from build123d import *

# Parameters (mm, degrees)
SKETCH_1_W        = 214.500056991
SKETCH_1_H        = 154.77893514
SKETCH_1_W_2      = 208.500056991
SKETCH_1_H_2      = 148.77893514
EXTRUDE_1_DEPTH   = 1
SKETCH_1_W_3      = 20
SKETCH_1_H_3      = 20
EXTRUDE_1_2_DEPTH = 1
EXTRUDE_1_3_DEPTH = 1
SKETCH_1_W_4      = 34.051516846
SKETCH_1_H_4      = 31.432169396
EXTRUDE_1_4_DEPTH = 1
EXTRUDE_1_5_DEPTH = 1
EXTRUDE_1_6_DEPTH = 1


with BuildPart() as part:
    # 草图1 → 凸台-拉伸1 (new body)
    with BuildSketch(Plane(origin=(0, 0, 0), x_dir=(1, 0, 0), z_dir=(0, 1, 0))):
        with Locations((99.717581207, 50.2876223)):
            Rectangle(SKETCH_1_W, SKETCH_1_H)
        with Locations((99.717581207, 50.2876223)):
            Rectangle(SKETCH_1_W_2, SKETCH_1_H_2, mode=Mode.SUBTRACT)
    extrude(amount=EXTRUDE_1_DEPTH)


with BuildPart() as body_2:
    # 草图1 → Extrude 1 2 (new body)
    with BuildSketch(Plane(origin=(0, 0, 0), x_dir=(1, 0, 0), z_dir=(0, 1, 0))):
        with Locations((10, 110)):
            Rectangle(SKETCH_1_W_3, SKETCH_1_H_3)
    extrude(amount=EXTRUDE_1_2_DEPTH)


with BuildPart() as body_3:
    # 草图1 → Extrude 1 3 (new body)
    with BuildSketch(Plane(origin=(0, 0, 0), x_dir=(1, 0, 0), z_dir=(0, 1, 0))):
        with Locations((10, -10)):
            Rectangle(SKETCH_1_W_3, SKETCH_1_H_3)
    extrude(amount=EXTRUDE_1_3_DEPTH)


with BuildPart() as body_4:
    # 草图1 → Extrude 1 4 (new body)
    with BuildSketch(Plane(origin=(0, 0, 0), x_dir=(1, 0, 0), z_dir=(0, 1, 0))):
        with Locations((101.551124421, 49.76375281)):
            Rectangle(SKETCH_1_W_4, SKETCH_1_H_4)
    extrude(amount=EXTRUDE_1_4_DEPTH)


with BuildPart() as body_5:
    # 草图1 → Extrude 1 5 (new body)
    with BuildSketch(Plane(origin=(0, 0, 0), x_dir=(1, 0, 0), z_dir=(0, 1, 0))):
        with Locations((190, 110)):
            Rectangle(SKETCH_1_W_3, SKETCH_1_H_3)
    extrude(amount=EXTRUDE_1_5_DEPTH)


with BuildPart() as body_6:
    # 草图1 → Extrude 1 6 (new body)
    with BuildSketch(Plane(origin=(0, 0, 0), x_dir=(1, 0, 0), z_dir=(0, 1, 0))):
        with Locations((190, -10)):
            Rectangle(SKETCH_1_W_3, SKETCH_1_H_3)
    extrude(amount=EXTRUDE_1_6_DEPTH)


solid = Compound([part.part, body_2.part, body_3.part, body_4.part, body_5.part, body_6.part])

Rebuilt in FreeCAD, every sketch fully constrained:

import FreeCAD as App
import Part
import Sketcher
from FreeCAD import Vector

doc = App.newDocument("Part")
body = doc.addObject("PartDesign::Body", "Body")

sketch1 = body.newObject("Sketcher::SketchObject", "Sketch")
sketch1.AttachmentSupport = (doc.getObject("XZ_Plane"), [""])
sketch1.MapMode = "FlatFace"
sketch1.addGeometry([
    Part.LineSegment(Vector(-8, -128, 0), Vector(-8, 27, 0)),
    Part.LineSegment(Vector(-8, 27, 0), Vector(207, 27, 0)),
    Part.LineSegment(Vector(207, 27, 0), Vector(207, -128, 0)),
    Part.LineSegment(Vector(207, -128, 0), Vector(-8, -128, 0)),
    Part.LineSegment(Vector(204, 24, 0), Vector(-5, 24, 0)),
    Part.LineSegment(Vector(-5, 24, 0), Vector(-5, -125, 0)),
    Part.LineSegment(Vector(-5, -125, 0), Vector(204, -125, 0)),
    Part.LineSegment(Vector(204, -125, 0), Vector(204, 24, 0)),
], False)
sketch1.addConstraint([
    Sketcher.Constraint("Coincident", 0, 2, 1, 1),
    Sketcher.Constraint("Coincident", 1, 2, 2, 1),
    Sketcher.Constraint("Coincident", 2, 2, 3, 1),
    Sketcher.Constraint("Coincident", 3, 2, 0, 1),
    Sketcher.Constraint("Coincident", 4, 2, 5, 1),
    Sketcher.Constraint("Coincident", 5, 2, 6, 1),
    Sketcher.Constraint("Coincident", 6, 2, 7, 1),
    Sketcher.Constraint("Coincident", 7, 2, 4, 1),
    Sketcher.Constraint("Vertical", 0),
    Sketcher.Constraint("Horizontal", 1),
    Sketcher.Constraint("Vertical", 2),
    Sketcher.Constraint("Horizontal", 3),
    Sketcher.Constraint("Horizontal", 4),
    Sketcher.Constraint("Vertical", 5),
    Sketcher.Constraint("Horizontal", 6),
    Sketcher.Constraint("Vertical", 7),
    Sketcher.Constraint("DistanceX", 0, 2, 4, 2, 3.0),
    Sketcher.Constraint("DistanceY", 4, 2, 0, 2, 3.0),
    Sketcher.Constraint("DistanceY", 3, 2, 5, 2, 3.0),
    Sketcher.Constraint("DistanceX", 6, 2, 2, 2, 3.0),
    Sketcher.Constraint("DistanceX", 1, 1, 1, 2, 214.500057),
    Sketcher.Constraint("DistanceY", 0, 1, 0, 2, 154.778935),
    Sketcher.Constraint("DistanceX", -1, 1, 1, 2, 206.96761),
    Sketcher.Constraint("DistanceY", 2, 2, -1, 1, 127.67709),
])
pad1 = body.newObject("PartDesign::Pad", "Pad")
pad1.Profile = sketch1
pad1.Length = 1
pad1.Reversed = True
body2 = doc.addObject("PartDesign::Body", "Body001")

sketch2 = body2.newObject("Sketcher::SketchObject", "Sketch001")
sketch2.AttachmentSupport = (doc.getObject("XZ_Plane001"), [""])
sketch2.MapMode = "FlatFace"
sketch2.addGeometry([
    Part.LineSegment(Vector(0, -120, 0), Vector(0, -100, 0)),
    Part.LineSegment(Vector(0, -100, 0), Vector(20, -100, 0)),
    Part.LineSegment(Vector(20, -100, 0), Vector(20, -120, 0)),
    Part.LineSegment(Vector(20, -120, 0), Vector(0, -120, 0)),
], False)
sketch2.addConstraint([
    Sketcher.Constraint("Coincident", 0, 2, 1, 1),
    Sketcher.Constraint("Coincident", 1, 2, 2, 1),
    Sketcher.Constraint("Coincident", 2, 2, 3, 1),
    Sketcher.Constraint("Coincident", 3, 2, 0, 1),
    Sketcher.Constraint("Vertical", 0),
    Sketcher.Constraint("Horizontal", 1),
    Sketcher.Constraint("Vertical", 2),
    Sketcher.Constraint("Horizontal", 3),
    Sketcher.Constraint("PointOnObject", 0, 2, -2),
    Sketcher.Constraint("Equal", 3, 0),
    Sketcher.Constraint("DistanceX", 1, 1, 1, 2, 20.0),
    Sketcher.Constraint("DistanceY", 0, 2, -1, 1, 100.0),
])
pad2 = body2.newObject("PartDesign::Pad", "Pad001")
pad2.Profile = sketch2
pad2.Length = 1
pad2.Reversed = True
body3 = doc.addObject("PartDesign::Body", "Body002")

sketch3 = body3.newObject("Sketcher::SketchObject", "Sketch002")
sketch3.AttachmentSupport = (doc.getObject("XZ_Plane002"), [""])
sketch3.MapMode = "FlatFace"
sketch3.addGeometry([
    Part.LineSegment(Vector(0, 0, 0), Vector(0, 20, 0)),
    Part.LineSegment(Vector(0, 20, 0), Vector(20, 20, 0)),
    Part.LineSegment(Vector(20, 20, 0), Vector(20, 0, 0)),
    Part.LineSegment(Vector(20, 0, 0), Vector(0, 0, 0)),
], False)
sketch3.addConstraint([
    Sketcher.Constraint("Coincident", 0, 2, 1, 1),
    Sketcher.Constraint("Coincident", 1, 2, 2, 1),
    Sketcher.Constraint("Coincident", 2, 2, 3, 1),
    Sketcher.Constraint("Coincident", 3, 2, 0, 1),
    Sketcher.Constraint("Vertical", 0),
    Sketcher.Constraint("Horizontal", 1),
    Sketcher.Constraint("Vertical", 2),
    Sketcher.Constraint("Horizontal", 3),
    Sketcher.Constraint("Coincident", 3, 2, -1, 1),
    Sketcher.Constraint("Equal", 3, 0),
    Sketcher.Constraint("DistanceX", 1, 1, 1, 2, 20.0),
])
pad3 = body3.newObject("PartDesign::Pad", "Pad002")
pad3.Profile = sketch3
pad3.Length = 1
pad3.Reversed = True
body4 = doc.addObject("PartDesign::Body", "Body003")

sketch4 = body4.newObject("Sketcher::SketchObject", "Sketch003")
sketch4.AttachmentSupport = (doc.getObject("XZ_Plane003"), [""])
sketch4.MapMode = "FlatFace"
sketch4.addGeometry([
    Part.LineSegment(Vector(85, -65, 0), Vector(85, -34, 0)),
    Part.LineSegment(Vector(85, -34, 0), Vector(119, -34, 0)),
    Part.LineSegment(Vector(119, -34, 0), Vector(119, -65, 0)),
    Part.LineSegment(Vector(119, -65, 0), Vector(85, -65, 0)),
], False)
sketch4.addConstraint([
    Sketcher.Constraint("Coincident", 0, 2, 1, 1),
    Sketcher.Constraint("Coincident", 1, 2, 2, 1),
    Sketcher.Constraint("Coincident", 2, 2, 3, 1),
    Sketcher.Constraint("Coincident", 3, 2, 0, 1),
    Sketcher.Constraint("Vertical", 0),
    Sketcher.Constraint("Horizontal", 1),
    Sketcher.Constraint("Vertical", 2),
    Sketcher.Constraint("Horizontal", 3),
    Sketcher.Constraint("DistanceY", 0, 1, 0, 2, 31.432169),
    Sketcher.Constraint("DistanceX", 1, 1, 1, 2, 34.051517),
    Sketcher.Constraint("DistanceY", 0, 2, -1, 1, 34.047668),
    Sketcher.Constraint("DistanceX", -1, 1, 0, 2, 84.525366),
])
pad4 = body4.newObject("PartDesign::Pad", "Pad003")
pad4.Profile = sketch4
pad4.Length = 1
pad4.Reversed = True
body5 = doc.addObject("PartDesign::Body", "Body004")

sketch5 = body5.newObject("Sketcher::SketchObject", "Sketch004")
sketch5.AttachmentSupport = (doc.getObject("XZ_Plane004"), [""])
sketch5.MapMode = "FlatFace"
sketch5.addGeometry([
    Part.LineSegment(Vector(180, -120, 0), Vector(180, -100, 0)),
    Part.LineSegment(Vector(180, -100, 0), Vector(200, -100, 0)),
    Part.LineSegment(Vector(200, -100, 0), Vector(200, -120, 0)),
    Part.LineSegment(Vector(200, -120, 0), Vector(180, -120, 0)),
], False)
sketch5.addConstraint([
    Sketcher.Constraint("Coincident", 0, 2, 1, 1),
    Sketcher.Constraint("Coincident", 1, 2, 2, 1),
    Sketcher.Constraint("Coincident", 2, 2, 3, 1),
    Sketcher.Constraint("Coincident", 3, 2, 0, 1),
    Sketcher.Constraint("Vertical", 0),
    Sketcher.Constraint("Horizontal", 1),
    Sketcher.Constraint("Vertical", 2),
    Sketcher.Constraint("Horizontal", 3),
    Sketcher.Constraint("Equal", 3, 0),
    Sketcher.Constraint("DistanceX", 1, 1, 1, 2, 20.0),
    Sketcher.Constraint("DistanceX", -1, 1, 0, 2, 180.0),
    Sketcher.Constraint("DistanceY", 0, 2, -1, 1, 100.0),
])
pad5 = body5.newObject("PartDesign::Pad", "Pad004")
pad5.Profile = sketch5
pad5.Length = 1
pad5.Reversed = True
body6 = doc.addObject("PartDesign::Body", "Body005")

sketch6 = body6.newObject("Sketcher::SketchObject", "Sketch005")
sketch6.AttachmentSupport = (doc.getObject("XZ_Plane005"), [""])
sketch6.MapMode = "FlatFace"
sketch6.addGeometry([
    Part.LineSegment(Vector(180, 0, 0), Vector(180, 20, 0)),
    Part.LineSegment(Vector(180, 20, 0), Vector(200, 20, 0)),
    Part.LineSegment(Vector(200, 20, 0), Vector(200, 0, 0)),
    Part.LineSegment(Vector(200, 0, 0), Vector(180, 0, 0)),
], False)
sketch6.addConstraint([
    Sketcher.Constraint("Coincident", 0, 2, 1, 1),
    Sketcher.Constraint("Coincident", 1, 2, 2, 1),
    Sketcher.Constraint("Coincident", 2, 2, 3, 1),
    Sketcher.Constraint("Coincident", 3, 2, 0, 1),
    Sketcher.Constraint("Vertical", 0),
    Sketcher.Constraint("Horizontal", 1),
    Sketcher.Constraint("Vertical", 2),
    Sketcher.Constraint("Horizontal", 3),
    Sketcher.Constraint("PointOnObject", 2, 2, -1),
    Sketcher.Constraint("Equal", 3, 0),
    Sketcher.Constraint("DistanceX", 1, 1, 1, 2, 20.0),
    Sketcher.Constraint("DistanceX", -1, 1, 0, 2, 180.0),
])
pad6 = body6.newObject("PartDesign::Pad", "Pad005")
pad6.Profile = sketch6
pad6.Length = 1
pad6.Reversed = True

doc.recompute()
